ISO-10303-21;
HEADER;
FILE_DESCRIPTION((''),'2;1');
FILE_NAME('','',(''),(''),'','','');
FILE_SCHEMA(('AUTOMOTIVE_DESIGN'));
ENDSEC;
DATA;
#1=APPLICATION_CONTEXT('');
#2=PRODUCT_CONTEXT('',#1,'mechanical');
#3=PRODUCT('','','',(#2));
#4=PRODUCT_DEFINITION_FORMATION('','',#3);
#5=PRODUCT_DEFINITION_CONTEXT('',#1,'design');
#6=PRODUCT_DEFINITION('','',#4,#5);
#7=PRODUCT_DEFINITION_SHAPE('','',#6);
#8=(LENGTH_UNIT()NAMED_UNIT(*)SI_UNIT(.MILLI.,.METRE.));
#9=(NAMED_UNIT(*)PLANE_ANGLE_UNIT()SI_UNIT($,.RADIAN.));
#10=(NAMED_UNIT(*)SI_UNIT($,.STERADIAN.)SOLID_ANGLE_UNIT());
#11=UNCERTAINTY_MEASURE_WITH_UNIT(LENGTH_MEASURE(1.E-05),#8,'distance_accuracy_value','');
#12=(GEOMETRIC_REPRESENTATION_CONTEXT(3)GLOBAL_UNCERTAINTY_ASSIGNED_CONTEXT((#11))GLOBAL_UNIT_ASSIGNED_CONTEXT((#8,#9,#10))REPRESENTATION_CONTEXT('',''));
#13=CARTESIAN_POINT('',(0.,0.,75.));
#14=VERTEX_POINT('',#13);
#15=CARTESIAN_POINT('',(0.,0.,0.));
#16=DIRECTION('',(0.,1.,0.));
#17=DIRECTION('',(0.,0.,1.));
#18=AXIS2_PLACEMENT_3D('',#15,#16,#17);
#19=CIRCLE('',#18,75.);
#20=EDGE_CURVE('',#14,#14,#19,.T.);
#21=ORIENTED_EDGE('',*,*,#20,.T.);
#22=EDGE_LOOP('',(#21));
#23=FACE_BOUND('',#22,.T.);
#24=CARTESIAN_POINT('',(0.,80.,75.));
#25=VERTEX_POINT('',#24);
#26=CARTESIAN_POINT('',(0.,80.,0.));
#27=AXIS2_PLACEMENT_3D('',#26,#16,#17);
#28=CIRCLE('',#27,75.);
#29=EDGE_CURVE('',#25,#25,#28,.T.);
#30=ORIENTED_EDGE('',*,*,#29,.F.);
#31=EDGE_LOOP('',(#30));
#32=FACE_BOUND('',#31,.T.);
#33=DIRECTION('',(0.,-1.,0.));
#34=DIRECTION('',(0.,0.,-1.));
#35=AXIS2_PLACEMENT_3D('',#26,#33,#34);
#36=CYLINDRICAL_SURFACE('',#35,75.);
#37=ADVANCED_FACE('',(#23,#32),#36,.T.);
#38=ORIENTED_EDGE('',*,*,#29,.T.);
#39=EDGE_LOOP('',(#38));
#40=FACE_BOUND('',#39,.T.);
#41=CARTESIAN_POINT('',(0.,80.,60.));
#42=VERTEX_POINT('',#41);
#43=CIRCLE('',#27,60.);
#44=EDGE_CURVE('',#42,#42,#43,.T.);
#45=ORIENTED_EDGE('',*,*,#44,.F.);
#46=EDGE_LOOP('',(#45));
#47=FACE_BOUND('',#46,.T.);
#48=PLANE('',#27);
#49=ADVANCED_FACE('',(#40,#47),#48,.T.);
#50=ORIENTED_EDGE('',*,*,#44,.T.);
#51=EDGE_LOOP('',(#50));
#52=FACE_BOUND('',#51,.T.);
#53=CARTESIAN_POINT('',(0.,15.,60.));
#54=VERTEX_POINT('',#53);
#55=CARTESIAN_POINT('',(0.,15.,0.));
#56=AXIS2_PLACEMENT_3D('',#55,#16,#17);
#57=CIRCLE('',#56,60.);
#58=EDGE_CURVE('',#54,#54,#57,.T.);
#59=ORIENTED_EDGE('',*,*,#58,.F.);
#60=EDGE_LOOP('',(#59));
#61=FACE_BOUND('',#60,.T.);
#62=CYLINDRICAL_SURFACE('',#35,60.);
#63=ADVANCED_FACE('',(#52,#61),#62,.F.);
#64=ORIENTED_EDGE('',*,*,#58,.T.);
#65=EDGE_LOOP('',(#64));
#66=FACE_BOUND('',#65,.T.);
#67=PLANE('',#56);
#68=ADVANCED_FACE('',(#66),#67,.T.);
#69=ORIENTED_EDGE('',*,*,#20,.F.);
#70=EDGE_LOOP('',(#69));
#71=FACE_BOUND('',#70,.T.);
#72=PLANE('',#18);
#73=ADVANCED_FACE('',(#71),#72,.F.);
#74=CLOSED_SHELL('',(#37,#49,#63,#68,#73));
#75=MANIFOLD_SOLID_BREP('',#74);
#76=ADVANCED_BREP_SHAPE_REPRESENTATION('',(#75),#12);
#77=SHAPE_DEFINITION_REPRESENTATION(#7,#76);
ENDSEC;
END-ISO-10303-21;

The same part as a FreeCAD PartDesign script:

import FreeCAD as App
import Part
import Sketcher


def faces_at(feature, points):
    """Names of the faces that lie closest to the given points."""
    faces = feature.Shape.Faces
    near = lambda p: min(range(len(faces)), key=lambda i: faces[i].distToShape(Part.Vertex(*p))[0])
    return sorted({f"Face{near(p) + 1}" for p in points})

doc = App.newDocument("Part")
body = doc.addObject("PartDesign::Body", "Body")

# Sketch on XZ plane
sketch1 = body.newObject("Sketcher::SketchObject", "Sketch")
sketch1.AttachmentSupport = (doc.getObject("XZ_Plane"), [""])
sketch1.MapMode = "FlatFace"
sketch1.addGeometry(Part.Circle(App.Vector(0, 0, 0), App.Vector(0, 0, 1), 75), False)
sketch1.addConstraint([
    Sketcher.Constraint("Coincident", 0, 3, -1, 1),
    Sketcher.Constraint("Diameter", 0, 150.0),
])
pad1 = body.newObject("PartDesign::Pad", "Pad")
pad1.Profile = sketch1
pad1.Length = 80
pad1.Reversed = True
doc.recompute()

thickness = body.newObject("PartDesign::Thickness", "Thickness")
thickness.Base = (pad1, faces_at(pad1, [(0, 80, 0)]))
thickness.Value = 15
thickness.Reversed = True
thickness.Join = "Intersection"

doc.recompute()
